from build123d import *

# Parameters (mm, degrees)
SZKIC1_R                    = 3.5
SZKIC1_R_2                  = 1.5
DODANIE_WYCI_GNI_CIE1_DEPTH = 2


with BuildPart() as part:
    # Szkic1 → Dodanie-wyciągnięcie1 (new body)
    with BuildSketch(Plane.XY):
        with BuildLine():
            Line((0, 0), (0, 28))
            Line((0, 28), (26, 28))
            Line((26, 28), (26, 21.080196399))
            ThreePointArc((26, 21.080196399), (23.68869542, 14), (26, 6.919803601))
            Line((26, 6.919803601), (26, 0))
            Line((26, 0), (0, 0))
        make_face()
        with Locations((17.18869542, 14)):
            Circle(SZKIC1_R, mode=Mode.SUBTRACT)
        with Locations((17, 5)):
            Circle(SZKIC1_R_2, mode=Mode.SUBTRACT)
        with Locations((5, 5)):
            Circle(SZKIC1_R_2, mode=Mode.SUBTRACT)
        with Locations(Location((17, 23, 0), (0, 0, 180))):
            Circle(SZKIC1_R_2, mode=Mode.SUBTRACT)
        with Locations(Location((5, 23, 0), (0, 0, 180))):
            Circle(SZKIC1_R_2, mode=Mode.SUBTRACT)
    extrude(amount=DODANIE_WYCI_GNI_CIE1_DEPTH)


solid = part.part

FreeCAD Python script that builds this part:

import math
import FreeCAD as App
import Part
import Sketcher

V = App.Vector

doc = App.newDocument("Part")
body = doc.addObject("PartDesign::Body", "Body")

sketch1 = body.newObject("Sketcher::SketchObject", "Sketch")
sketch1.AttachmentSupport = (doc.getObject("XY_Plane"), [""])
sketch1.MapMode = "FlatFace"
sketch1.addGeometry([
    Part.LineSegment(V(0, 28, 0), V(0, 0, 0)),
    Part.LineSegment(V(0, 0, 0), V(26, 0, 0)),
    Part.LineSegment(V(26, 0, 0), V(26, 6.9, 0)),
    Part.ArcOfCircle(Part.Circle(V(35.7, 14, 0), V(0, 0, 1), 12), math.radians(144), math.radians(216)),
    Part.LineSegment(V(26, 21.1, 0), V(26, 28, 0)),
    Part.LineSegment(V(26, 28, 0), V(0, 28, 0)),
    Part.Circle(V(17, 5, 0), V(0, 0, 1), 1.5),
    Part.Circle(V(5, 5, 0), V(0, 0, 1), 1.5),
    Part.Circle(V(17.2, 14, 0), V(0, 0, 1), 3.5),
    Part.Circle(V(17, 23, 0), V(0, 0, 1), 1.5),
    Part.Circle(V(5, 23, 0), V(0, 0, 1), 1.5),
], False)
sketch1.addConstraint([
    Sketcher.Constraint("Coincident", 0, 2, 1, 1),
    Sketcher.Constraint("Coincident", 1, 2, 2, 1),
    Sketcher.Constraint("Coincident", 2, 2, 3, 2),
    Sketcher.Constraint("Coincident", 3, 1, 4, 1),
    Sketcher.Constraint("Coincident", 4, 2, 5, 1),
    Sketcher.Constraint("Coincident", 5, 2, 0, 1),
    Sketcher.Constraint("Vertical", 0),
    Sketcher.Constraint("Horizontal", 1),
    Sketcher.Constraint("Vertical", 2),
    Sketcher.Constraint("Vertical", 4),
    Sketcher.Constraint("Horizontal", 5),
    Sketcher.Constraint("Coincident", 0, 2, -1, 1),
    Sketcher.Constraint("Equal", 6, 7),
    Sketcher.Constraint("Equal", 7, 9),
    Sketcher.Constraint("Equal", 9, 10),
    Sketcher.Constraint("Horizontal", 6, 3, 7, 3),
    Sketcher.Constraint("Horizontal", 3, 3, 8, 3),
    Sketcher.Constraint("Horizontal", 9, 3, 10, 3),
    Sketcher.Constraint("Vertical", 6, 3, 9, 3),
    Sketcher.Constraint("Vertical", 7, 3, 10, 3),
    Sketcher.Constraint("Vertical", 2, 2, 3, 1),
    Sketcher.Constraint("Equal", 2, 4),
    Sketcher.Constraint("Diameter", 6, 3.0),
    Sketcher.Constraint("Diameter", 8, 7.0),
    Sketcher.Constraint("Radius", 3, 12.0),
    Sketcher.Constraint("DistanceX", 1, 1, 1, 2, 26.0),
    Sketcher.Constraint("DistanceY", 0, 2, 0, 1, 28.0),
    Sketcher.Constraint("DistanceX", -1, 1, 6, 3, 17.0),
    Sketcher.Constraint("DistanceY", -1, 1, 6, 3, 5.0),
    Sketcher.Constraint("DistanceX", -1, 1, 7, 3, 5.0),
    Sketcher.Constraint("DistanceY", -1, 1, 9, 3, 23.0),
    Sketcher.Constraint("DistanceX", 8, 3, 3, 3, 18.5),
    Sketcher.Constraint("DistanceY", 2, 1, 2, 2, 6.919804),
])
pad1 = body.newObject("PartDesign::Pad", "Pad")
pad1.Profile = sketch1
pad1.Length = 2

doc.recompute()
